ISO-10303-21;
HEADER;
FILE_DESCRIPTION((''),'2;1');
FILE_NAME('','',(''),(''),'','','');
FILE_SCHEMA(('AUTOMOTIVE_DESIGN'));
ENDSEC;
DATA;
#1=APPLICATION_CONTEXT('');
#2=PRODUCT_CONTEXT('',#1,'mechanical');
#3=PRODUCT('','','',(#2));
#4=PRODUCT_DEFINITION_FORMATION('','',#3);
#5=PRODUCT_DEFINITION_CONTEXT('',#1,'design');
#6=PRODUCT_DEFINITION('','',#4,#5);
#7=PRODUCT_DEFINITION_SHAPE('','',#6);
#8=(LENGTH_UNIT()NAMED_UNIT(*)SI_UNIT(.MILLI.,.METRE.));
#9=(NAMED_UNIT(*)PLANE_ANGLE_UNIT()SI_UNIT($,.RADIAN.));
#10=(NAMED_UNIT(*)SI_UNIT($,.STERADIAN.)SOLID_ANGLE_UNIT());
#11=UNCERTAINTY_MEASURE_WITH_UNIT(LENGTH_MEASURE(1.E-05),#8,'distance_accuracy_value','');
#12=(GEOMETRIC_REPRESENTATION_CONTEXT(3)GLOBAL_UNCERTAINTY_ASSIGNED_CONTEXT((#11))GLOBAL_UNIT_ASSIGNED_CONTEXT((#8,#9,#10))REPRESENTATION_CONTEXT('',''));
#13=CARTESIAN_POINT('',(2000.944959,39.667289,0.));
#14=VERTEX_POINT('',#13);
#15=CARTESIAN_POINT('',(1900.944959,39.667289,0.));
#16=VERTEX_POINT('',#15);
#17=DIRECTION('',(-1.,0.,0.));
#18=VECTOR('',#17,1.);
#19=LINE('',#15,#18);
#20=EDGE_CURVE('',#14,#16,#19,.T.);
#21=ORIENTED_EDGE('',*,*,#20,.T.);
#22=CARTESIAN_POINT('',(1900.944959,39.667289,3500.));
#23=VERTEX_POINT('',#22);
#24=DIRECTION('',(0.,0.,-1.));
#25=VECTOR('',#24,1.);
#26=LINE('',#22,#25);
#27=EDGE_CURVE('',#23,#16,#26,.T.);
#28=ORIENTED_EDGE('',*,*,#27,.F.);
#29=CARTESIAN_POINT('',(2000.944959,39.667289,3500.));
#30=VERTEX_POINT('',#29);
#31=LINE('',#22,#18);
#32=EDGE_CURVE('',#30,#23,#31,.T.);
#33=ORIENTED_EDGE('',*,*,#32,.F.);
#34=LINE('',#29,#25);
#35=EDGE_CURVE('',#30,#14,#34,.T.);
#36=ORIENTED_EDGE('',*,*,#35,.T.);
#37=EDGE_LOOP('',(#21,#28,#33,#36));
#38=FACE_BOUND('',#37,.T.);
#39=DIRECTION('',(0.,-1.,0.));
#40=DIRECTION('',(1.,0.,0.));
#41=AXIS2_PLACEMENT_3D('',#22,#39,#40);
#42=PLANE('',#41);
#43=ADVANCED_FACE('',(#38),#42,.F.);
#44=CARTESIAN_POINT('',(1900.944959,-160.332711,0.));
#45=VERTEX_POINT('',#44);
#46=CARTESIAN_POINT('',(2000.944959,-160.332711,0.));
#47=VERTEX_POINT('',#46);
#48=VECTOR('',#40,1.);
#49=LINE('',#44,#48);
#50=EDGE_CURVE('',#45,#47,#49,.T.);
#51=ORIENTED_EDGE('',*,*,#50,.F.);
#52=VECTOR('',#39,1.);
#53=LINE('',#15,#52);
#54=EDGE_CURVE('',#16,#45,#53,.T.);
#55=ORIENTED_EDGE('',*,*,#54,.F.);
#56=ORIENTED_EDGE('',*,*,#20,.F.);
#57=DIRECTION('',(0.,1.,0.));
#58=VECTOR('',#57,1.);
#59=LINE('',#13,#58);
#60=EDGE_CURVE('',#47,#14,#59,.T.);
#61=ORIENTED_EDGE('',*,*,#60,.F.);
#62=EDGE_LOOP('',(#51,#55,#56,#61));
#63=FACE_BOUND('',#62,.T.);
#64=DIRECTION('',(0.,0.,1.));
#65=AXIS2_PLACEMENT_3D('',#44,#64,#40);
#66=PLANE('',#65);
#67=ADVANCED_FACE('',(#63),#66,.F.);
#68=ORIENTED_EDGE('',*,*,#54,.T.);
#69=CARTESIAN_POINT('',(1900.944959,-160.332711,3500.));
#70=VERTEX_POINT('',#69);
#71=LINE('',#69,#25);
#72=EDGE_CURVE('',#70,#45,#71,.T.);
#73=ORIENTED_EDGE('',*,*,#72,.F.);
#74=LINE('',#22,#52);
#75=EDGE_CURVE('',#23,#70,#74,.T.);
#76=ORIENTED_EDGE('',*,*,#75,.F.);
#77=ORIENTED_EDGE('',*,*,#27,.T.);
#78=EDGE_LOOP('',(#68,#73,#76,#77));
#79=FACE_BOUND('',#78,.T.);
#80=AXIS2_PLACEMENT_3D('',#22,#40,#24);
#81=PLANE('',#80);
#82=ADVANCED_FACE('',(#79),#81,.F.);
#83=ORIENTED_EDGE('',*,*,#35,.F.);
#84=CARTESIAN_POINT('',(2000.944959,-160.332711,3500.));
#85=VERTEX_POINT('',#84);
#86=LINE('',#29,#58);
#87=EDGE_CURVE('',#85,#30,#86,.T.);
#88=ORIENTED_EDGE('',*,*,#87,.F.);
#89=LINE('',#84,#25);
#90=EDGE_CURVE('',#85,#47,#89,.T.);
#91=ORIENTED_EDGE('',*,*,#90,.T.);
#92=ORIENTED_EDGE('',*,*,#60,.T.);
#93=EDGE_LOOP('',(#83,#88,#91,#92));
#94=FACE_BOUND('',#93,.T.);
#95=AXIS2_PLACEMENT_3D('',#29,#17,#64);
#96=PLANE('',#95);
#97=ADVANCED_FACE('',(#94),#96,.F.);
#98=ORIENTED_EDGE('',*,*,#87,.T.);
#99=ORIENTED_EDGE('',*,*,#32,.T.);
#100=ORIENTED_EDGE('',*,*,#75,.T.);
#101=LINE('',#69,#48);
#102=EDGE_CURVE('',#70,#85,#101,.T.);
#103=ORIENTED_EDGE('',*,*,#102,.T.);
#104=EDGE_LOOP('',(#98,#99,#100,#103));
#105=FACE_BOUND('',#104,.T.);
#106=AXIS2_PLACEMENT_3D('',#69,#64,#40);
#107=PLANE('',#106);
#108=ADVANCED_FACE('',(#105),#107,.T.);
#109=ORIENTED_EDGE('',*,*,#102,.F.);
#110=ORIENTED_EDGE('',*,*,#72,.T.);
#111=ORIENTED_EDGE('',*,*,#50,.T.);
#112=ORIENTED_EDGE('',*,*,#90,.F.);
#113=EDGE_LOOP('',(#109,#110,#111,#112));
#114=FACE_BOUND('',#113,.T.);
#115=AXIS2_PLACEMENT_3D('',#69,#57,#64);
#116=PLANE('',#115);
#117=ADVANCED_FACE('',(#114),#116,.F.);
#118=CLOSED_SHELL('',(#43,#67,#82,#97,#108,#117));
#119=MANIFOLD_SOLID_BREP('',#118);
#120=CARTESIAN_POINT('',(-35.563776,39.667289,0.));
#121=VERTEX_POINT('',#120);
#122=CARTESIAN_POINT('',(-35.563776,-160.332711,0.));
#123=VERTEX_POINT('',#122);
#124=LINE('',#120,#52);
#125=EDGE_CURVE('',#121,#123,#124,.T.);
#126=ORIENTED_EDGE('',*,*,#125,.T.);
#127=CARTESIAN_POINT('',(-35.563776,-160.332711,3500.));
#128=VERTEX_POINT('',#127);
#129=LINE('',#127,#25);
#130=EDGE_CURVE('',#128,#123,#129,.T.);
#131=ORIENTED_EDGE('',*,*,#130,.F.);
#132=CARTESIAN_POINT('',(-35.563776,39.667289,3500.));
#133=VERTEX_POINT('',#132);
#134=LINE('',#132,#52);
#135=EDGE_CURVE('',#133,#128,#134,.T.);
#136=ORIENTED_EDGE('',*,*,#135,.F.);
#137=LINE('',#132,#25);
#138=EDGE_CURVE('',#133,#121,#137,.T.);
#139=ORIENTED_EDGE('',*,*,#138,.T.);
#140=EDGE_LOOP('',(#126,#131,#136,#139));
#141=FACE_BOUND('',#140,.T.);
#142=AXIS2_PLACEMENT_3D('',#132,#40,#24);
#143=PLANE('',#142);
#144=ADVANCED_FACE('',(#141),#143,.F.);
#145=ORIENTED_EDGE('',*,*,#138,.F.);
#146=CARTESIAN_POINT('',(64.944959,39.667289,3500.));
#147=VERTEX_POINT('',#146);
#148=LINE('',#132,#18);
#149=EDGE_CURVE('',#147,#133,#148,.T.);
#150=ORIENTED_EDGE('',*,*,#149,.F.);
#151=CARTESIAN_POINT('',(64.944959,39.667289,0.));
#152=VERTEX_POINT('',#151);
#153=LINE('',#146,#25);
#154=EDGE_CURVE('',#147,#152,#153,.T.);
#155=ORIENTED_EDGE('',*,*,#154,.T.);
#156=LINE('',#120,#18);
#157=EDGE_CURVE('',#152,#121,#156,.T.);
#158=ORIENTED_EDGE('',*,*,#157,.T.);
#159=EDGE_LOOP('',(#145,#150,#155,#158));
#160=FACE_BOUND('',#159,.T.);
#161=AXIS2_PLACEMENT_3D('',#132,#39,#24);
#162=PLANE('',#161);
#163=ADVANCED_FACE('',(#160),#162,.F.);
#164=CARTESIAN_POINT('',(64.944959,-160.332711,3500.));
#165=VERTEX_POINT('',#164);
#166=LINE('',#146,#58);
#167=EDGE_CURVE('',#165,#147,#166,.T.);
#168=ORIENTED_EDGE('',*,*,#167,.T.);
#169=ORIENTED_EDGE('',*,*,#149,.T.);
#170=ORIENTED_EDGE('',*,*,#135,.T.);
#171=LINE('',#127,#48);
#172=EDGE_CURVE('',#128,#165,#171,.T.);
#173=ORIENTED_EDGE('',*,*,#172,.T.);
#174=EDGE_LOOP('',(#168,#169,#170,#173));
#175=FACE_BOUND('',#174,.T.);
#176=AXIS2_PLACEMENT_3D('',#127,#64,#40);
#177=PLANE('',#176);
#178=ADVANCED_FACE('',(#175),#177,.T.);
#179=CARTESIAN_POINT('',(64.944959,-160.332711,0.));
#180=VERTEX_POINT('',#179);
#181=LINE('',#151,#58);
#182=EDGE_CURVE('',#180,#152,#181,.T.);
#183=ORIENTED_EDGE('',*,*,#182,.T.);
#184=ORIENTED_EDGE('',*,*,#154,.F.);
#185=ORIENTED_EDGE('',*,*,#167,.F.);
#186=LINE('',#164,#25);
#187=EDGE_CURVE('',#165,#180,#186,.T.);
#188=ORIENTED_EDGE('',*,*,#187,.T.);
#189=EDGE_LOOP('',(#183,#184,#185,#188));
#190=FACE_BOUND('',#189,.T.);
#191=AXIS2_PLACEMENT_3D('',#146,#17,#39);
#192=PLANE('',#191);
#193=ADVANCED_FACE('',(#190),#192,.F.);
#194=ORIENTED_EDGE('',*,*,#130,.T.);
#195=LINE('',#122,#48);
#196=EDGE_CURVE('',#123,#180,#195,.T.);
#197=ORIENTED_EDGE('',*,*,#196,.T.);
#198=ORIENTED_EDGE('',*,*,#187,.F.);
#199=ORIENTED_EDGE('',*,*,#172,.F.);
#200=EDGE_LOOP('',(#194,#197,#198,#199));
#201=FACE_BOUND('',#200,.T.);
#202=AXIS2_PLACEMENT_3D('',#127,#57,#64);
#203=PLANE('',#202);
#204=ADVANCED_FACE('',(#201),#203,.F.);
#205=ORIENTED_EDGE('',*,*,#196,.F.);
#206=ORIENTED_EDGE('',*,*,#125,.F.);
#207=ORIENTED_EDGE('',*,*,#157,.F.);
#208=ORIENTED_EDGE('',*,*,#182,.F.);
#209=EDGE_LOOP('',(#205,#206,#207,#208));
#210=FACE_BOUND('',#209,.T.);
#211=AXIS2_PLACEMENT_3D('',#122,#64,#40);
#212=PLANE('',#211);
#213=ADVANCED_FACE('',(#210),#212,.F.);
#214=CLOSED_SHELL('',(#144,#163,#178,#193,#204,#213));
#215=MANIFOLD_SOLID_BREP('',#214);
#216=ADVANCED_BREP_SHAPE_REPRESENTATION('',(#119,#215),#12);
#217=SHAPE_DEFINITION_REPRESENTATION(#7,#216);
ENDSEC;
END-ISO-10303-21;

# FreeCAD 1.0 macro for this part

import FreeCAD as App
import Part
import Sketcher
from FreeCAD import Vector
Q = App.Units.Quantity


def add_polygon(sketch, points):
    """Adds a closed chain of lines whose ends are joined by coincident constraints."""
    first, n = sketch.GeometryCount, len(points)
    for a, b in zip(points, points[1:] + points[:1]):
        sketch.addGeometry(Part.LineSegment(App.Vector(*a, 0), App.Vector(*b, 0)), False)
    for i in range(n):
        sketch.addConstraint(Sketcher.Constraint("Coincident", first + i, 2, first + (i + 1) % n, 1))

doc = App.newDocument("Part")
params = doc.addObject("Spreadsheet::Sheet", "Params")
for row, (alias, value) in enumerate([
    ("sketch1_width", "100 mm"),
    ("sketch1_height", "200 mm"),
    ("pad1_length", "3500 mm"),
    ("sketch2_height", "200 mm"),
    ("pad2_length", "3500 mm"),
], start=1):
    params.set(f"A{row}", alias)
    params.set(f"B{row}", "=" + value)
    params.setAlias(f"B{row}", alias)

body = doc.addObject("PartDesign::Body", "Body")

# Sketch on XY plane
sketch1 = doc.addObject("Sketcher::SketchObject", "Sketch")
body.addObject(sketch1)
sketch1.AttachmentSupport = (doc.XY_Plane, [""])
sketch1.MapMode = "FlatFace"
add_polygon(sketch1, [(1901, 40), (1901, -160), (2001, -160), (2001, 40)])  # lines 0-3
sketch1.addConstraint([
    Sketcher.Constraint("Vertical", 0),
    Sketcher.Constraint("Horizontal", 1),
    Sketcher.Constraint("Vertical", 2),
    Sketcher.Constraint("Horizontal", 3),
    Sketcher.Constraint("DistanceX", 1, 1, 1, 2, Q("100 mm")),
    Sketcher.Constraint("DistanceY", 0, 2, 0, 1, Q("200 mm")),
    Sketcher.Constraint("DistanceX", -1, 1, 0, 2, Q("1900.944959 mm")),
    Sketcher.Constraint("DistanceY", 0, 2, -1, 1, Q("160.332711 mm")),
])
sketch1.setExpression("Constraints[8]", "Params.sketch1_width")
sketch1.setExpression("Constraints[9]", "Params.sketch1_height")
pad1 = doc.addObject("PartDesign::Pad", "Pad")
body.addObject(pad1)
pad1.Profile = sketch1
pad1.setExpression("Length", "Params.pad1_length")
body2 = doc.addObject("PartDesign::Body", "Body001")

# Sketch on XY plane
sketch2 = doc.addObject("Sketcher::SketchObject", "Sketch001")
body2.addObject(sketch2)
sketch2.AttachmentSupport = (doc.getObject("XY_Plane001"), [""])
sketch2.MapMode = "FlatFace"
add_polygon(sketch2, [(-36, 40), (-36, -160), (65, -160), (65, 40)])  # lines 0-3
sketch2.addConstraint([
    Sketcher.Constraint("Vertical", 0),
    Sketcher.Constraint("Horizontal", 1),
    Sketcher.Constraint("Vertical", 2),
    Sketcher.Constraint("Horizontal", 3),
    Sketcher.Constraint("DistanceY", 0, 2, 0, 1, Q("200 mm")),
    Sketcher.Constraint("DistanceX", 1, 1, 1, 2, Q("100.508736 mm")),
    Sketcher.Constraint("DistanceY", 0, 2, -1, 1, Q("160.332711 mm")),
    Sketcher.Constraint("DistanceX", -1, 1, 1, 2, Q("64.944959 mm")),
])
sketch2.setExpression("Constraints[8]", "Params.sketch2_height")
pad2 = doc.addObject("PartDesign::Pad", "Pad001")
body2.addObject(pad2)
pad2.Profile = sketch2
pad2.setExpression("Length", "Params.pad2_length")

doc.recompute()
